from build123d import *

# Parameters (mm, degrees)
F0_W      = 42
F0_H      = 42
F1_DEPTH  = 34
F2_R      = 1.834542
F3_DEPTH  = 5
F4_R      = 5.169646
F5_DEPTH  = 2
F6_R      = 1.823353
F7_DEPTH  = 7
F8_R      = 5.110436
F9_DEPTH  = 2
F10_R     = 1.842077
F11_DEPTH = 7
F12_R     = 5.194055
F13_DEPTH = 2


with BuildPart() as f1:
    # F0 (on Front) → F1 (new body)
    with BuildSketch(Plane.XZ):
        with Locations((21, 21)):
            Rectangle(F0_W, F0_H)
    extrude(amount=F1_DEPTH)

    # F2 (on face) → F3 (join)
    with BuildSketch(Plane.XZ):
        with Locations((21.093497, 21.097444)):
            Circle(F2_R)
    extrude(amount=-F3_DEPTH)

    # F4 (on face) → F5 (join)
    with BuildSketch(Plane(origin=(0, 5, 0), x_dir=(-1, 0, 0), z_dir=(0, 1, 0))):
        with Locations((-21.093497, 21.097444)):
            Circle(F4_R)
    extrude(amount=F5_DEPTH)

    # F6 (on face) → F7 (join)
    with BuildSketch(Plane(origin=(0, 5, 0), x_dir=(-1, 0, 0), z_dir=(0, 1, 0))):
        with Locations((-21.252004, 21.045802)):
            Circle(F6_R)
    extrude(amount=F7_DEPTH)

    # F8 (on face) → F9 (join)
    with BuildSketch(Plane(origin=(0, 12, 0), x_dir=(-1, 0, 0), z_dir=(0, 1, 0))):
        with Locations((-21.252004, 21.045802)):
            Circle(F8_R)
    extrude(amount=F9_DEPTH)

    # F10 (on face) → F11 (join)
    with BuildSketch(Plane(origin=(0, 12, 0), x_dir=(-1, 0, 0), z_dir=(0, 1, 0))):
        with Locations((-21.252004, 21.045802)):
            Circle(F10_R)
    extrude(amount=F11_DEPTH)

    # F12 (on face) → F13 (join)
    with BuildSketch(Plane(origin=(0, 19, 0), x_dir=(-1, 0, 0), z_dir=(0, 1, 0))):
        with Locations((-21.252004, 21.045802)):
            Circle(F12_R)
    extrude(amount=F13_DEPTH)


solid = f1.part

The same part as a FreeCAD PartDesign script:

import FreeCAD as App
import Part
import Sketcher
from FreeCAD import Vector

doc = App.newDocument("Part")
body = doc.addObject("PartDesign::Body", "Body")

# Sketch on XZ plane
sketch1 = body.newObject("Sketcher::SketchObject", "Sketch")
sketch1.AttachmentSupport = (doc.getObject("XZ_Plane"), [""])
sketch1.MapMode = "FlatFace"
sketch1.addGeometry([
    Part.LineSegment(Vector(0, 42, 0), Vector(0, 0, 0)),
    Part.LineSegment(Vector(0, 0, 0), Vector(42, 0, 0)),
    Part.LineSegment(Vector(42, 0, 0), Vector(42, 42, 0)),
    Part.LineSegment(Vector(42, 42, 0), Vector(0, 42, 0)),
], False)
sketch1.addConstraint([
    Sketcher.Constraint("Coincident", 0, 2, 1, 1),
    Sketcher.Constraint("Coincident", 1, 2, 2, 1),
    Sketcher.Constraint("Coincident", 2, 2, 3, 1),
    Sketcher.Constraint("Coincident", 3, 2, 0, 1),
    Sketcher.Constraint("Vertical", 0),
    Sketcher.Constraint("Horizontal", 1),
    Sketcher.Constraint("Vertical", 2),
    Sketcher.Constraint("Horizontal", 3),
    Sketcher.Constraint("Coincident", 0, 2, -1, 1),
    Sketcher.Constraint("Equal", 3, 0),
    Sketcher.Constraint("DistanceX", 1, 1, 1, 2, 42.0),
])
pad1 = body.newObject("PartDesign::Pad", "Pad")
pad1.Profile = sketch1
pad1.Length = 34

# Sketch on XZ plane
sketch2 = body.newObject("Sketcher::SketchObject", "Sketch001")
sketch2.AttachmentSupport = (doc.getObject("XZ_Plane"), [""])
sketch2.MapMode = "FlatFace"
sketch2.addGeometry(Part.Circle(Vector(21.1, 21.1, 0), Vector(0, 0, 1), 1.8), False)
sketch2.addConstraint([
    Sketcher.Constraint("Diameter", 0, 3.669084),
    Sketcher.Constraint("DistanceX", -1, 1, 0, 3, 21.093497),
    Sketcher.Constraint("DistanceY", -1, 1, 0, 3, 21.097444),
])
pad2 = body.newObject("PartDesign::Pad", "Pad001")
pad2.Profile = sketch2
pad2.Length = 5
pad2.Reversed = True

# Sketch on XZ plane
sketch3 = body.newObject("Sketcher::SketchObject", "Sketch002")
sketch3.AttachmentSupport = (doc.getObject("XZ_Plane"), [""])
sketch3.MapMode = "FlatFace"
sketch3.AttachmentOffset = App.Placement(Vector(0, 0, -5), App.Rotation())
sketch3.addGeometry(Part.Circle(Vector(21, 21, 0), Vector(0, 0, 1), 5), False)
sketch3.addConstraint([
    Sketcher.Constraint("Diameter", 0, 10.339292),
    Sketcher.Constraint("DistanceX", -1, 1, 0, 3, 21.093497),
    Sketcher.Constraint("DistanceY", -1, 1, 0, 3, 21.097444),
])
pad3 = body.newObject("PartDesign::Pad", "Pad002")
pad3.Profile = sketch3
pad3.Length = 2
pad3.Reversed = True

# Sketch on XZ plane
sketch4 = body.newObject("Sketcher::SketchObject", "Sketch003")
sketch4.AttachmentSupport = (doc.getObject("XZ_Plane"), [""])
sketch4.MapMode = "FlatFace"
sketch4.AttachmentOffset = App.Placement(Vector(0, 0, -5), App.Rotation())
sketch4.addGeometry(Part.Circle(Vector(21.3, 21, 0), Vector(0, 0, 1), 1.8), False)
sketch4.addConstraint([
    Sketcher.Constraint("Diameter", 0, 3.646706),
    Sketcher.Constraint("DistanceY", -1, 1, 0, 3, 21.045802),
    Sketcher.Constraint("DistanceX", -1, 1, 0, 3, 21.252004),
])
pad4 = body.newObject("PartDesign::Pad", "Pad003")
pad4.Profile = sketch4
pad4.Length = 7
pad4.Reversed = True

# Sketch on XZ plane
sketch5 = body.newObject("Sketcher::SketchObject", "Sketch004")
sketch5.AttachmentSupport = (doc.getObject("XZ_Plane"), [""])
sketch5.MapMode = "FlatFace"
sketch5.AttachmentOffset = App.Placement(Vector(0, 0, -12), App.Rotation())
sketch5.addGeometry(Part.Circle(Vector(21, 21, 0), Vector(0, 0, 1), 5), False)
sketch5.addConstraint([
    Sketcher.Constraint("Diameter", 0, 10.220872),
    Sketcher.Constraint("DistanceY", -1, 1, 0, 3, 21.045802),
    Sketcher.Constraint("DistanceX", -1, 1, 0, 3, 21.252004),
])
pad5 = body.newObject("PartDesign::Pad", "Pad004")
pad5.Profile = sketch5
pad5.Length = 2
pad5.Reversed = True

# Sketch on XZ plane
sketch6 = body.newObject("Sketcher::SketchObject", "Sketch005")
sketch6.AttachmentSupport = (doc.getObject("XZ_Plane"), [""])
sketch6.MapMode = "FlatFace"
sketch6.AttachmentOffset = App.Placement(Vector(0, 0, -12), App.Rotation())
sketch6.addGeometry(Part.Circle(Vector(21.3, 21, 0), Vector(0, 0, 1), 1.8), False)
sketch6.addConstraint([
    Sketcher.Constraint("Diameter", 0, 3.684154),
    Sketcher.Constraint("DistanceY", -1, 1, 0, 3, 21.045802),
    Sketcher.Constraint("DistanceX", -1, 1, 0, 3, 21.252004),
])
pad6 = body.newObject("PartDesign::Pad", "Pad005")
pad6.Profile = sketch6
pad6.Length = 7
pad6.Reversed = True

# Sketch on XZ plane
sketch7 = body.newObject("Sketcher::SketchObject", "Sketch006")
sketch7.AttachmentSupport = (doc.getObject("XZ_Plane"), [""])
sketch7.MapMode = "FlatFace"
sketch7.AttachmentOffset = App.Placement(Vector(0, 0, -19), App.Rotation())
sketch7.addGeometry(Part.Circle(Vector(21, 21, 0), Vector(0, 0, 1), 5), False)
sketch7.addConstraint([
    Sketcher.Constraint("Diameter", 0, 10.38811),
    Sketcher.Constraint("DistanceY", -1, 1, 0, 3, 21.045802),
    Sketcher.Constraint("DistanceX", -1, 1, 0, 3, 21.252004),
])
pad7 = body.newObject("PartDesign::Pad", "Pad006")
pad7.Profile = sketch7
pad7.Length = 2
pad7.Reversed = True

doc.recompute()
